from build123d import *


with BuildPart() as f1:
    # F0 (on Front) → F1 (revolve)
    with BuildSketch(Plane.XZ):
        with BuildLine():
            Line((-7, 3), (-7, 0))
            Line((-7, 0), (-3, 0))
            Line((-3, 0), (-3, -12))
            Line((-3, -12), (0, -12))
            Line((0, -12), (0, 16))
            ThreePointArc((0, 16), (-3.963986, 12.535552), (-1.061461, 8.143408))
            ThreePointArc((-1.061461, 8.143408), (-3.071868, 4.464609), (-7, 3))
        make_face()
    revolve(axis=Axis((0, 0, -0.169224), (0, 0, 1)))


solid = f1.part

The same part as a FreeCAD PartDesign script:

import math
import FreeCAD as App
import Part
import Sketcher
from FreeCAD import Vector
Q = App.Units.Quantity

doc = App.newDocument("Part")
body = doc.addObject("PartDesign::Body", "Body")

# Sketch on XZ plane
sketch1 = body.newObject("Sketcher::SketchObject", "Sketch")
sketch1.AttachmentSupport = (doc.getObject("XZ_Plane"), [""])
sketch1.MapMode = "FlatFace"
sketch1.addGeometry([
    Part.LineSegment(Vector(-7, 3, 0), Vector(-7, 0, 0)),  # 0
    Part.LineSegment(Vector(-7, 0, 0), Vector(-3, 0, 0)),  # 1
    Part.LineSegment(Vector(-3, 0, 0), Vector(-3, -12, 0)),  # 2
    Part.LineSegment(Vector(-3, -12, 0), Vector(0, -12, 0)),  # 3
    Part.LineSegment(Vector(0, -12, 0), Vector(0, 16, 0)),  # 4
    Part.ArcOfCircle(Part.Circle(Vector(0, 12, 0), Vector(0, 0, 1), 4), math.radians(90), math.radians(255)),  # 5
    Part.ArcOfCircle(Part.Circle(Vector(-7, 9, 0), Vector(0, 0, 1), 6), math.radians(-90), math.radians(-8)),  # 6
], False)
sketch1.addConstraint([
    Sketcher.Constraint("Coincident", 0, 2, 1, 1),
    Sketcher.Constraint("Coincident", 1, 2, 2, 1),
    Sketcher.Constraint("Coincident", 2, 2, 3, 1),
    Sketcher.Constraint("Coincident", 3, 2, 4, 1),
    Sketcher.Constraint("Coincident", 4, 2, 5, 1),
    Sketcher.Constraint("Coincident", 5, 2, 6, 2),
    Sketcher.Constraint("Coincident", 6, 1, 0, 1),
    Sketcher.Constraint("Vertical", 0),
    Sketcher.Constraint("Horizontal", 1),
    Sketcher.Constraint("Vertical", 2),
    Sketcher.Constraint("Horizontal", 3),
    Sketcher.Constraint("Vertical", 4),
    Sketcher.Constraint("PointOnObject", 5, 3, -2),
    Sketcher.Constraint("PointOnObject", 0, 2, -1),
    Sketcher.Constraint("PointOnObject", 3, 2, -2),
    Sketcher.Constraint("Vertical", 6, 3, 0, 2),
    Sketcher.Constraint("Equal", 3, 0),
    Sketcher.Constraint("Radius", 5, Q("4 mm")),
    Sketcher.Constraint("Radius", 6, Q("6.000001 mm")),
    Sketcher.Constraint("DistanceX", 1, 1, 1, 2, Q("4 mm")),
    Sketcher.Constraint("DistanceX", 3, 1, 3, 2, Q("3 mm")),
    Sketcher.Constraint("DistanceY", 2, 2, 2, 1, Q("12 mm")),
    Sketcher.Constraint("DistanceY", 4, 1, 4, 2, Q("28 mm")),
])
revolution = body.newObject("PartDesign::Revolution", "Revolution")
revolution.Profile = sketch1
revolution.ReferenceAxis = (sketch1, ["V_Axis"])
revolution.Angle = 360

doc.recompute()
